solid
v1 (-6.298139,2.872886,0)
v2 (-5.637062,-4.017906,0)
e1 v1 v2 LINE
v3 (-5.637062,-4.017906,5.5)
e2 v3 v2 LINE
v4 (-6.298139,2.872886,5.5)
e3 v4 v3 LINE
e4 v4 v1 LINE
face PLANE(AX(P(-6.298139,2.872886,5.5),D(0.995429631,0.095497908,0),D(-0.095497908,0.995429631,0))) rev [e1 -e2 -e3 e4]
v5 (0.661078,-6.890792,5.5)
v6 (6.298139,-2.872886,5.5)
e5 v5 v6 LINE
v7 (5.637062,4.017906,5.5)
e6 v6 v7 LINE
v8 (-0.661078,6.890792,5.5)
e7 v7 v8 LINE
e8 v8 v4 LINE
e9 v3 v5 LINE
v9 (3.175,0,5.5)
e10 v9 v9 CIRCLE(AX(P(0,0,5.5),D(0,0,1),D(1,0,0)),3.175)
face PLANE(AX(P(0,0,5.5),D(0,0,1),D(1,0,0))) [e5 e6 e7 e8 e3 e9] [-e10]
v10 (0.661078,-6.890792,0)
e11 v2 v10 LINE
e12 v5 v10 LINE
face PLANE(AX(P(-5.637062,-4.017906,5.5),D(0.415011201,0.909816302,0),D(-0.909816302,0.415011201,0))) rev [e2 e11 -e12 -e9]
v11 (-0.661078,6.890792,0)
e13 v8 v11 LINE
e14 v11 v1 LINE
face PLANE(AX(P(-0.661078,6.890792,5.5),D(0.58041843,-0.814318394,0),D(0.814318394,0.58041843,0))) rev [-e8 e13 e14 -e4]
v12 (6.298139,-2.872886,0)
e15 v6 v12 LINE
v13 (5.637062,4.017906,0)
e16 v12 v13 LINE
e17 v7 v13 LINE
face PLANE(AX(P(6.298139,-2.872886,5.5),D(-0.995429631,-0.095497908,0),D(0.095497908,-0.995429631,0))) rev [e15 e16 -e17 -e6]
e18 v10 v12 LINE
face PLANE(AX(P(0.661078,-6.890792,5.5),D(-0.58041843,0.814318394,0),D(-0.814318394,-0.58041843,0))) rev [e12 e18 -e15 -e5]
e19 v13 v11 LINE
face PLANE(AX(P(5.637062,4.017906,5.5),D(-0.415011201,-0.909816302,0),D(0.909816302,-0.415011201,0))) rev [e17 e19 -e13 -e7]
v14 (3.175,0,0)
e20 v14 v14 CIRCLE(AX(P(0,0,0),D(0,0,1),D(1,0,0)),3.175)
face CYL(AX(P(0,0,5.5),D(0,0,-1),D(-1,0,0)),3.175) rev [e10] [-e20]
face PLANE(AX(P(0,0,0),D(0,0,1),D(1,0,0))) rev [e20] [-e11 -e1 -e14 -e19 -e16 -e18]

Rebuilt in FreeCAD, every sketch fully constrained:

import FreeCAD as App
import Part
import Sketcher


def add_polygon(sketch, points):
    """Adds a closed chain of lines whose ends are joined by coincident constraints."""
    first, n = sketch.GeometryCount, len(points)
    for a, b in zip(points, points[1:] + points[:1]):
        sketch.addGeometry(Part.LineSegment(App.Vector(*a, 0), App.Vector(*b, 0)), False)
    for i in range(n):
        sketch.addConstraint(Sketcher.Constraint("Coincident", first + i, 2, first + (i + 1) % n, 1))

doc = App.newDocument("Part")
body = doc.addObject("PartDesign::Body", "Body")

# Sketch on XY plane
sketch1 = body.newObject("Sketcher::SketchObject", "Sketch")
sketch1.AttachmentSupport = (doc.getObject("XY_Plane"), [""])
sketch1.MapMode = "FlatFace"
add_polygon(sketch1, [(-5.637062, -4.017906), (0.661078, -6.890792), (6.298139, -2.872886), (5.637062, 4.017906), (-0.661078, 6.890792), (-6.298139, 2.872886)])  # lines 0-5
sketch1.addGeometry(Part.Circle(App.Vector(0, 0, 0), App.Vector(0, 0, 1), 3.175), False)  # 6
sketch1.addConstraint([
    Sketcher.Constraint("Coincident", 6, 3, -1, 1),
    Sketcher.Constraint("Symmetric", 0, 2, 3, 2, -1, 1),
    Sketcher.Constraint("Symmetric", 1, 2, 4, 2, -1, 1),
    Sketcher.Constraint("Symmetric", 2, 2, 5, 2, -1, 1),
    Sketcher.Constraint("Equal", 0, 1),
    Sketcher.Constraint("Equal", 1, 2),
    Sketcher.Constraint("Diameter", 6, 6.35),
    Sketcher.Constraint("DistanceX", 4, 2, 2, 2, 11.935201),
    Sketcher.Constraint("Distance", 0, 6.92243),
    Sketcher.Constraint("DistanceY", 0, 2, -1, 1, 6.890792),
    Sketcher.Constraint("DistanceX", -1, 1, 1, 2, 6.298139),
])
pad1 = body.newObject("PartDesign::Pad", "Pad")
pad1.Profile = sketch1
pad1.Length = 5.5

doc.recompute()
